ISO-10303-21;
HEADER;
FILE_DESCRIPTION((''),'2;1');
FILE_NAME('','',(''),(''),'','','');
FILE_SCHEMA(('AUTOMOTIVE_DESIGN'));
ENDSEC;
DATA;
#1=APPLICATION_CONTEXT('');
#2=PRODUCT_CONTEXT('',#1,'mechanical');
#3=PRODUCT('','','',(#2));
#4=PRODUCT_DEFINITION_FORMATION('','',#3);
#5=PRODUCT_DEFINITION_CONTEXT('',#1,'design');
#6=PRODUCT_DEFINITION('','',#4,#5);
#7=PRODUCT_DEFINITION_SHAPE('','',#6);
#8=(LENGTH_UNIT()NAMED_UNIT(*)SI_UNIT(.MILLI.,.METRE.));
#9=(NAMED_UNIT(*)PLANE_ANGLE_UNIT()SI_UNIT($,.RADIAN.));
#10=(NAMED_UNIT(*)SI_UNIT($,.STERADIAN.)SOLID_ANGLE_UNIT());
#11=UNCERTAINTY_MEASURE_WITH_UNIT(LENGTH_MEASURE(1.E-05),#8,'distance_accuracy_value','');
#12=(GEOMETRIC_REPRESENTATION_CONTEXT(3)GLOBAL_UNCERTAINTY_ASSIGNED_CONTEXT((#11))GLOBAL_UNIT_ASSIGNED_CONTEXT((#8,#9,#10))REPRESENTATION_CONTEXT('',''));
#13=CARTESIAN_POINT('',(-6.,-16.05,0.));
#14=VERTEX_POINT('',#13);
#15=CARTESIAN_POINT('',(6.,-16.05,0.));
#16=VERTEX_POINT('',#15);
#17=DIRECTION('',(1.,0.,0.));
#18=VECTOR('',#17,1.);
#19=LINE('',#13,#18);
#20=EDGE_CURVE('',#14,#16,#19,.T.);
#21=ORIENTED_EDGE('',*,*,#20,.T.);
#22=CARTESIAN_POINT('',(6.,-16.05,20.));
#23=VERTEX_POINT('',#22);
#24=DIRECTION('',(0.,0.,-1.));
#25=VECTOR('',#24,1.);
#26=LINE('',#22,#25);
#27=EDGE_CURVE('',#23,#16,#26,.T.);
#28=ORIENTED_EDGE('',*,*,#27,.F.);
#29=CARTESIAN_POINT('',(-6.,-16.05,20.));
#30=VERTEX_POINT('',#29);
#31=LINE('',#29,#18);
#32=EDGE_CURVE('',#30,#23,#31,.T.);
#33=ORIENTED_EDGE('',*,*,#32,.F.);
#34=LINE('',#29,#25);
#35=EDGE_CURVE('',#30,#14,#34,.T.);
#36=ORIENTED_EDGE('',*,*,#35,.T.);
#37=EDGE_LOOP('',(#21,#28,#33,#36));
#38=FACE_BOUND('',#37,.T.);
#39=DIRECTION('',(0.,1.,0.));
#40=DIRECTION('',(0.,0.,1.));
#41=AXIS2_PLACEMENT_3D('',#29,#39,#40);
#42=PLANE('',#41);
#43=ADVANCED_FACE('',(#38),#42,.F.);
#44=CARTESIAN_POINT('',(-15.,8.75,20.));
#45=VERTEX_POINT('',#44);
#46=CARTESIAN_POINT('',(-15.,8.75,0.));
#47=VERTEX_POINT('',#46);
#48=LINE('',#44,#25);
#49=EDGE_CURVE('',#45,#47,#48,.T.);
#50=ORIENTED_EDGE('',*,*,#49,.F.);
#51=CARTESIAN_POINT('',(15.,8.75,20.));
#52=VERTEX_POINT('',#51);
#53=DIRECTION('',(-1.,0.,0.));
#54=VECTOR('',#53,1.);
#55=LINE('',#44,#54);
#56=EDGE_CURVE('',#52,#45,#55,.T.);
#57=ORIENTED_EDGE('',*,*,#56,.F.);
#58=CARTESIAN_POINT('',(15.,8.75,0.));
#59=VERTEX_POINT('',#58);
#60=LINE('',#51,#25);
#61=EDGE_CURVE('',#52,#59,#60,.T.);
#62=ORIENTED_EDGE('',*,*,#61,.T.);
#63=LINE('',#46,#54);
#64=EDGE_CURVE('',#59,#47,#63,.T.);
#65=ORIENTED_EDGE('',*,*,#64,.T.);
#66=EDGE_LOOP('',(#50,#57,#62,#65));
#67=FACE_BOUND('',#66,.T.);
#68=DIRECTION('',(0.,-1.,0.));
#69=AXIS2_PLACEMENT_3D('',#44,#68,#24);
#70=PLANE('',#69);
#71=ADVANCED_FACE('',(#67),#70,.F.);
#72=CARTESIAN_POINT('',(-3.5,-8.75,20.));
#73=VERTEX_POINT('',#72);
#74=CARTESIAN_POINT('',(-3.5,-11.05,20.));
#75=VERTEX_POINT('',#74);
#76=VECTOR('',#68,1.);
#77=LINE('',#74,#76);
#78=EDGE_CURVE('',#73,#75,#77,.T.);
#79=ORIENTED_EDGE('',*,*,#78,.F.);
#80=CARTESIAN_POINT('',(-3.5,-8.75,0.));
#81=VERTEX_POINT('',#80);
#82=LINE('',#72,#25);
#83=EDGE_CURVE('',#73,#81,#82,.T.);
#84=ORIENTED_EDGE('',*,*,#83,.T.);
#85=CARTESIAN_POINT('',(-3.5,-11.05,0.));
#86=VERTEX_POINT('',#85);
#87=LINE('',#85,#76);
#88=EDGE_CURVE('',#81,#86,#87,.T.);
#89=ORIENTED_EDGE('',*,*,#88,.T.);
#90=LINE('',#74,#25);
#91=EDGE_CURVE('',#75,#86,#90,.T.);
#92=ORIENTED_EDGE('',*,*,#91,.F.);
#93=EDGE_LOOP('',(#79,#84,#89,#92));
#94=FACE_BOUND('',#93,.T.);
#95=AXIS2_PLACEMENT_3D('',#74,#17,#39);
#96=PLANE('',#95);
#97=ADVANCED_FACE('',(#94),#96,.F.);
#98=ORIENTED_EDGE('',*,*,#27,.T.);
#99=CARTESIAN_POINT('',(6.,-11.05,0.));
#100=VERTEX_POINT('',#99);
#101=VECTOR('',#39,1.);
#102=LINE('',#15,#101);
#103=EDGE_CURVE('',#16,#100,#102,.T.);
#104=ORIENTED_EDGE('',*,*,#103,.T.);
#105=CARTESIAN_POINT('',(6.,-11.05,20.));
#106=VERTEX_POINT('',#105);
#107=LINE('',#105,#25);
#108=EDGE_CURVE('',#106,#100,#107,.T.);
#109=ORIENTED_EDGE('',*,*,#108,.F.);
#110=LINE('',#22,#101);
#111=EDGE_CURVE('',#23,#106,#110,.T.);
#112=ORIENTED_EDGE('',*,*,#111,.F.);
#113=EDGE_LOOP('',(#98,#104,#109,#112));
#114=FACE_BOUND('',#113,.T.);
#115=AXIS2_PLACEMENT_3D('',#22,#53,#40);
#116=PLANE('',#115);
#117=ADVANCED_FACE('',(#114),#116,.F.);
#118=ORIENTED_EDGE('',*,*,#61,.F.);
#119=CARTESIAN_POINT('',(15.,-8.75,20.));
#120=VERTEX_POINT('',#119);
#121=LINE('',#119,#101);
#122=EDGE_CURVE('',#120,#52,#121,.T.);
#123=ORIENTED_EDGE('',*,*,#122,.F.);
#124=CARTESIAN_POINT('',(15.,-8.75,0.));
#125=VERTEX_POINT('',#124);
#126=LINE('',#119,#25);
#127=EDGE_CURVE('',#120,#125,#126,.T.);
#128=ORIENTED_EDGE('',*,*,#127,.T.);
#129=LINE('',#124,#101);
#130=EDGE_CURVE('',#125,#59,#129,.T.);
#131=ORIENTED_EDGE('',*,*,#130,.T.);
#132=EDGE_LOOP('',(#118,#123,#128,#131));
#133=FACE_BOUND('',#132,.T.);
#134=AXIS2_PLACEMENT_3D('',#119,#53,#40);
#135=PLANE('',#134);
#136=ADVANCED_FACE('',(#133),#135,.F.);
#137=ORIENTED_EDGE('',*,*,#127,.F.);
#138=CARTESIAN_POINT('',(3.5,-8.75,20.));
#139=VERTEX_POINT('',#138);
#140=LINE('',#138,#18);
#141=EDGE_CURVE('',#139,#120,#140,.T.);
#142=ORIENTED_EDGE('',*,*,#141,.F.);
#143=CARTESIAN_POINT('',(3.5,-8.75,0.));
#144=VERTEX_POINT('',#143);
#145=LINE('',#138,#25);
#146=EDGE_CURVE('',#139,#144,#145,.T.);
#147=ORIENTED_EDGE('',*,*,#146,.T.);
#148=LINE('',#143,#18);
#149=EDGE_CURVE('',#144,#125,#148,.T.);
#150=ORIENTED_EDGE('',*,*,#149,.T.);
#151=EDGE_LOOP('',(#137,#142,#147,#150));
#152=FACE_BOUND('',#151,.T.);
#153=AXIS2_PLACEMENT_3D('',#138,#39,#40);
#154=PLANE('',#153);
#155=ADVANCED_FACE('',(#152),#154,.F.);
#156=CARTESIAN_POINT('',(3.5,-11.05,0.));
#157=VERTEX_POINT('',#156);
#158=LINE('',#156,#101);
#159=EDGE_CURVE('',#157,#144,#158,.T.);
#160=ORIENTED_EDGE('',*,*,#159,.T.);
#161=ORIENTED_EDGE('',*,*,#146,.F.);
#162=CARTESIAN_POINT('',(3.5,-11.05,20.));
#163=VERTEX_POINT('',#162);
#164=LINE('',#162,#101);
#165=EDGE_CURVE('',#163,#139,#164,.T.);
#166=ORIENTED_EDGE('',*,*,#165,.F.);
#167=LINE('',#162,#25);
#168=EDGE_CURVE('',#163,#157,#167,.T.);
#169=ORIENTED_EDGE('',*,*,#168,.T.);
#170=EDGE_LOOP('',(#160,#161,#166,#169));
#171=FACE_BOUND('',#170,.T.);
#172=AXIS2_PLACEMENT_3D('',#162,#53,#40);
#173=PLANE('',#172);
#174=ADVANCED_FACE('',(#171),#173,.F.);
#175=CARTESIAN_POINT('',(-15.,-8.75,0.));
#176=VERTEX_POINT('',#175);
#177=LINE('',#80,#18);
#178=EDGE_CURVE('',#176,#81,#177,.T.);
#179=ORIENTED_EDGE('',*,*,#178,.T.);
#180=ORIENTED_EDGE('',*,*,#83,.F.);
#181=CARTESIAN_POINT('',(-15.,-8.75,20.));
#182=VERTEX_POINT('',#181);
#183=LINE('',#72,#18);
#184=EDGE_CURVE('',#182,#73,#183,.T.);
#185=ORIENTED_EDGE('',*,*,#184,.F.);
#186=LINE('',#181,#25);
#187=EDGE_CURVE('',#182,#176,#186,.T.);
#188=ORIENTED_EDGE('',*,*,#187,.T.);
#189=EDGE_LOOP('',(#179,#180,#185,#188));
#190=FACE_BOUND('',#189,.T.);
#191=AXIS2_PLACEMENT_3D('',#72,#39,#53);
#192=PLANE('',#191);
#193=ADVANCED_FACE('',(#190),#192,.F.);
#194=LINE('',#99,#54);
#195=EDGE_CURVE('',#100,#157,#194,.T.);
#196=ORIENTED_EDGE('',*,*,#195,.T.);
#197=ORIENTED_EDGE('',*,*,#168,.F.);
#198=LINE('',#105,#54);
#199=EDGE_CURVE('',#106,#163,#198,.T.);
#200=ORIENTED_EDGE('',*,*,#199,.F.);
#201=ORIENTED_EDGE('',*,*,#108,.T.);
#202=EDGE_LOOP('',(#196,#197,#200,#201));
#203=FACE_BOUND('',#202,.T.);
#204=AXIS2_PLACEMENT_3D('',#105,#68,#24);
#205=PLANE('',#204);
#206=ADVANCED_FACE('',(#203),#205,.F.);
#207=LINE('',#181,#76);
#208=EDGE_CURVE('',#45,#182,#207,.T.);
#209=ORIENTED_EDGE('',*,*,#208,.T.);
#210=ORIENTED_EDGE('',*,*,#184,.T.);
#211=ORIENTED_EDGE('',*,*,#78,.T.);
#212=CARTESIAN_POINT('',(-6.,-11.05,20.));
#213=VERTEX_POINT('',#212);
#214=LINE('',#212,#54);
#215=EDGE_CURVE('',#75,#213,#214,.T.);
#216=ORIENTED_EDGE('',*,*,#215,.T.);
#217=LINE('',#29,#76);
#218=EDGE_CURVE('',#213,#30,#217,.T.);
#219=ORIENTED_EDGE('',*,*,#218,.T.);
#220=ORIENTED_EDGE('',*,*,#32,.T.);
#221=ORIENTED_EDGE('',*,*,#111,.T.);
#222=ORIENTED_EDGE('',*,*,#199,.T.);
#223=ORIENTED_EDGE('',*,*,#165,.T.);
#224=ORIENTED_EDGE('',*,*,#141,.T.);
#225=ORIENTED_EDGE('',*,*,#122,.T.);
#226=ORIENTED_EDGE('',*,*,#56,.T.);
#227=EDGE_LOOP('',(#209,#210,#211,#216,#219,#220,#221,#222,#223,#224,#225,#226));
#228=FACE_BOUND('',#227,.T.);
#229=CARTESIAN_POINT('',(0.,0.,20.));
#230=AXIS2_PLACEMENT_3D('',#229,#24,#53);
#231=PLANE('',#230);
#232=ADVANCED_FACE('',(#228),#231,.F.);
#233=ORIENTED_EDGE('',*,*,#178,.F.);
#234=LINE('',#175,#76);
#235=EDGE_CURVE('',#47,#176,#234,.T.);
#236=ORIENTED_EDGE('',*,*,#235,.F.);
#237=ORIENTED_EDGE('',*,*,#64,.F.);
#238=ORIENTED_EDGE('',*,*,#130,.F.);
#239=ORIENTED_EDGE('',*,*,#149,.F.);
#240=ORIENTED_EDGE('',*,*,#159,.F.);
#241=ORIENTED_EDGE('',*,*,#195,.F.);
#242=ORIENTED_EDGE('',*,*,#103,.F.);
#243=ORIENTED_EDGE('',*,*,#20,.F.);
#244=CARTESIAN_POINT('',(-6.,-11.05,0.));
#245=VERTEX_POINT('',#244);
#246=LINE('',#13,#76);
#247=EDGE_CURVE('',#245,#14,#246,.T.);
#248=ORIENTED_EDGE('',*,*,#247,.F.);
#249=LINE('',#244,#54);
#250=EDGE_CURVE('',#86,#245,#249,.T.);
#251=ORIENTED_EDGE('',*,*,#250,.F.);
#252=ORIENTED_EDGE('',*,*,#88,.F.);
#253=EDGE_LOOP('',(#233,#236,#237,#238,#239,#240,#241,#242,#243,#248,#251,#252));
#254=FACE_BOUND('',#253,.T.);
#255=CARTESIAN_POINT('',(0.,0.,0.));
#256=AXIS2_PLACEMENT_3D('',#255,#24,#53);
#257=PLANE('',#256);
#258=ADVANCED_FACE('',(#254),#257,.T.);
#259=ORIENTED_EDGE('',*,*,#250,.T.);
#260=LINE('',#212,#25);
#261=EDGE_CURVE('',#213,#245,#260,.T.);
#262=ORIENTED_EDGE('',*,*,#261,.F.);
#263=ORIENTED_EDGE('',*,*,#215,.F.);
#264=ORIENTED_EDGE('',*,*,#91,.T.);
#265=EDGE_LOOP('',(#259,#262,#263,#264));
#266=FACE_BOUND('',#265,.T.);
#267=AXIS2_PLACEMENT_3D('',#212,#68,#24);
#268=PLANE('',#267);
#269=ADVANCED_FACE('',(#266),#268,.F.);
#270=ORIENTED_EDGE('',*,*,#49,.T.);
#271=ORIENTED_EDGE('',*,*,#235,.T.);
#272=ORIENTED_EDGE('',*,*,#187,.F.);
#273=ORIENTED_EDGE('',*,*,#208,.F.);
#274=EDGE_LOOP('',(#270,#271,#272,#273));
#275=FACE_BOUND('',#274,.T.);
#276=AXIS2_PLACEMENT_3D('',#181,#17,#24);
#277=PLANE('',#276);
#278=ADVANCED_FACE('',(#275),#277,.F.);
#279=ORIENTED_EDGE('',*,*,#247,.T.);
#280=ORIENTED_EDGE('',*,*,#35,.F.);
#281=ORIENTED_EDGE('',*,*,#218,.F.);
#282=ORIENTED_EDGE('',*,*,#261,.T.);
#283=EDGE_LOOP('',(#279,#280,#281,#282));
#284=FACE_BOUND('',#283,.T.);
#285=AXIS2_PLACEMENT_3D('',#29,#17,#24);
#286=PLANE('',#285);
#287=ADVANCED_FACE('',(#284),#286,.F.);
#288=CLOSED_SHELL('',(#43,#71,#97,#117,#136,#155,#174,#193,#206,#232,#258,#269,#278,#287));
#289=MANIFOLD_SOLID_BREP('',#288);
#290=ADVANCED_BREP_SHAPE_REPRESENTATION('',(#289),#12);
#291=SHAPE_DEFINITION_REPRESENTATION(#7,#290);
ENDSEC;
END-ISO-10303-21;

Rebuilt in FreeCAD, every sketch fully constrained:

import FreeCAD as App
import Part
import Sketcher
Q = App.Units.Quantity


def add_polygon(sketch, points):
    """Adds a closed chain of lines whose ends are joined by coincident constraints."""
    first, n = sketch.GeometryCount, len(points)
    for a, b in zip(points, points[1:] + points[:1]):
        sketch.addGeometry(Part.LineSegment(App.Vector(*a, 0), App.Vector(*b, 0)), False)
    for i in range(n):
        sketch.addConstraint(Sketcher.Constraint("Coincident", first + i, 2, first + (i + 1) % n, 1))

doc = App.newDocument("Part")
body = doc.addObject("PartDesign::Body", "Body")

# Sketch on XY plane
sketch1 = body.newObject("Sketcher::SketchObject", "Sketch")
sketch1.AttachmentSupport = (doc.getObject("XY_Plane"), [""])
sketch1.MapMode = "FlatFace"
add_polygon(sketch1, [(-6, -16.1), (6, -16.1), (6, -11.1), (3.5, -11.1), (3.5, -8.8), (15, -8.8), (15, 8.8), (-15, 8.8), (-15, -8.8), (-3.5, -8.8), (-3.5, -11.1), (-6, -11.1)])  # lines 0-11
sketch1.addConstraint(Sketcher.Constraint("Horizontal", 0))
sketch1.addConstraint(Sketcher.Constraint("Vertical", 1))
sketch1.addConstraint(Sketcher.Constraint("Horizontal", 2))
sketch1.addConstraint(Sketcher.Constraint("Vertical", 3))
sketch1.addConstraint(Sketcher.Constraint("Horizontal", 4))
sketch1.addConstraint(Sketcher.Constraint("Vertical", 5))
sketch1.addConstraint(Sketcher.Constraint("Horizontal", 6))
sketch1.addConstraint(Sketcher.Constraint("Vertical", 7))
sketch1.addConstraint(Sketcher.Constraint("Horizontal", 8))
sketch1.addConstraint(Sketcher.Constraint("Vertical", 9))
sketch1.addConstraint(Sketcher.Constraint("Horizontal", 10))
sketch1.addConstraint(Sketcher.Constraint("Vertical", 11))
sketch1.addConstraint(Sketcher.Constraint("Symmetric", 4, 2, 6, 2, -1, 1))
sketch1.addConstraint(Sketcher.Constraint("Symmetric", 3, 2, 8, 2, -2))
sketch1.addConstraint(Sketcher.Constraint("Symmetric", 1, 2, 10, 2, -2))
sketch1.addConstraint(Sketcher.Constraint("DistanceX", 0, 1, 0, 2, Q("12 mm")))
sketch1.addConstraint(Sketcher.Constraint("DistanceX", 6, 2, 6, 1, Q("30 mm")))
sketch1.addConstraint(Sketcher.Constraint("DistanceY", 1, 1, 1, 2, Q("5 mm")))
sketch1.addConstraint(Sketcher.Constraint("DistanceX", 2, 2, 2, 1, Q("2.5 mm")))
sketch1.addConstraint(Sketcher.Constraint("DistanceY", 3, 1, 3, 2, Q("2.3 mm")))
sketch1.addConstraint(Sketcher.Constraint("DistanceY", 5, 1, 5, 2, Q("17.5 mm")))
pad1 = body.newObject("PartDesign::Pad", "Pad")
pad1.Profile = sketch1
pad1.Length = 20

doc.recompute()
